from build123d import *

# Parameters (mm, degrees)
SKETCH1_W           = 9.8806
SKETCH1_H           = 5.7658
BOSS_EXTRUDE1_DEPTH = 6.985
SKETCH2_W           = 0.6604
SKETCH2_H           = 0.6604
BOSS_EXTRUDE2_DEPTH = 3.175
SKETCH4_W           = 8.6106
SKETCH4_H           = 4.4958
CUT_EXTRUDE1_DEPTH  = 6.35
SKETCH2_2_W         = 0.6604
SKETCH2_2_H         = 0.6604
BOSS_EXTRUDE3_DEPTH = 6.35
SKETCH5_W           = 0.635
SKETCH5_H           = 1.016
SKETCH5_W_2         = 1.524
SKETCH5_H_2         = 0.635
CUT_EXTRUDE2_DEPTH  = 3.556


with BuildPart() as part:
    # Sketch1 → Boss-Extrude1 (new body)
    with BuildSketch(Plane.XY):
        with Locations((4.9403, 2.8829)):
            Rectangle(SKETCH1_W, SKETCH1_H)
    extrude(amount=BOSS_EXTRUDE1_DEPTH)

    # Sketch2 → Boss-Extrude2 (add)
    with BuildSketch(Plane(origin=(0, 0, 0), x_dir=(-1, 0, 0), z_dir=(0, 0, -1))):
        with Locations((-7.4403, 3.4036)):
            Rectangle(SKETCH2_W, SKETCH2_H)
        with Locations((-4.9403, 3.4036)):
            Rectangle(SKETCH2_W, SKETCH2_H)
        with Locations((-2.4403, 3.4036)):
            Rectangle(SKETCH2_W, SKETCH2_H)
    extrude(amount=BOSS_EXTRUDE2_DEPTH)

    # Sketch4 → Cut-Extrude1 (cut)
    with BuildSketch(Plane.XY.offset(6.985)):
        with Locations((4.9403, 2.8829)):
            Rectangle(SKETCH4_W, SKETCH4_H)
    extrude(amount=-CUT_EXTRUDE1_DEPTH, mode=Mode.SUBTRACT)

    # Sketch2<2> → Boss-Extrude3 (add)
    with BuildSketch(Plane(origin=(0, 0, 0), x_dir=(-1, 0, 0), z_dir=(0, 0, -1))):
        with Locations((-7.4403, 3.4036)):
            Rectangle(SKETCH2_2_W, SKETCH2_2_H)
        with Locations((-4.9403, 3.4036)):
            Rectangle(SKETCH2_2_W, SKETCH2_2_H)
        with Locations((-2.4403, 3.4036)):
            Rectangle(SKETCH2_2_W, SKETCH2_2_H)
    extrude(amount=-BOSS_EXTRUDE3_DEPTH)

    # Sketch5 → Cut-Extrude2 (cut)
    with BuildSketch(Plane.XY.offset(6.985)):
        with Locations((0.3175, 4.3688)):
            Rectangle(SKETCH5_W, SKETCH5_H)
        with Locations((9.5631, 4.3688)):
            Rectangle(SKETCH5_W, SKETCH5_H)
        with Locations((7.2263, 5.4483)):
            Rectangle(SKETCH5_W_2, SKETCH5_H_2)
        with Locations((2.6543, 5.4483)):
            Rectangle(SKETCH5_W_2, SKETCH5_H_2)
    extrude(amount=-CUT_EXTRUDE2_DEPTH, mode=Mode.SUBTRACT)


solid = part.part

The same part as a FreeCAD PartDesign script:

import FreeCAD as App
import Part
import Sketcher
Q = App.Units.Quantity

doc = App.newDocument("Part")
params = doc.addObject("Spreadsheet::Sheet", "Params")
for row, (alias, value) in enumerate([
    ("sketch1_width", "0.389 in"),
    ("sketch1_height", "0.227 in"),
    ("pad1_length", "0.275 in"),
    ("sketch2_width", "0.026 in"),
    ("pad2_length", "0.125 in"),
    ("sketch3_width", "0.339 in"),
    ("sketch3_height", "0.177 in"),
    ("pocket1_length", "0.25 in"),
    ("sketch4_width", "0.026 in"),
    ("pad3_length", "0.25 in"),
    ("sketch5_width", "0.06 in"),
    ("sketch5_height", "0.04 in"),
    ("sketch5_width2", "0.025 in"),
    ("pocket2_length", "0.14 in"),
], start=1):
    params.set(f"A{row}", alias)
    params.set(f"B{row}", "=" + value)
    params.setAlias(f"B{row}", alias)

body = doc.addObject("PartDesign::Body", "Body")

sketch1 = body.newObject("Sketcher::SketchObject", "Sketch")
sketch1.AttachmentSupport = (doc.getObject("XY_Plane"), [""])
sketch1.MapMode = "FlatFace"
sketch1.addGeometry([
    Part.LineSegment(App.Vector(0, 5.7658, 0), App.Vector(0, 0, 0)),
    Part.LineSegment(App.Vector(0, 0, 0), App.Vector(9.8806, 0, 0)),
    Part.LineSegment(App.Vector(9.8806, 0, 0), App.Vector(9.8806, 5.7658, 0)),
    Part.LineSegment(App.Vector(9.8806, 5.7658, 0), App.Vector(0, 5.7658, 0)),
], False)
sketch1.addConstraint([
    Sketcher.Constraint("Coincident", 0, 2, 1, 1),
    Sketcher.Constraint("Coincident", 1, 2, 2, 1),
    Sketcher.Constraint("Coincident", 2, 2, 3, 1),
    Sketcher.Constraint("Coincident", 3, 2, 0, 1),
    Sketcher.Constraint("Vertical", 0),
    Sketcher.Constraint("Horizontal", 1),
    Sketcher.Constraint("Vertical", 2),
    Sketcher.Constraint("Horizontal", 3),
    Sketcher.Constraint("Coincident", 0, 2, -1, 1),
    Sketcher.Constraint("DistanceX", 1, 1, 1, 2, Q("0.389 in")),
    Sketcher.Constraint("DistanceY", 0, 2, 0, 1, Q("0.227 in")),
])
sketch1.setExpression("Constraints[9]", "Params.sketch1_width")
sketch1.setExpression("Constraints[10]", "Params.sketch1_height")
pad1 = body.newObject("PartDesign::Pad", "Pad")
pad1.Profile = sketch1
pad1.setExpression("Length", "Params.pad1_length")

sketch2 = body.newObject("Sketcher::SketchObject", "Sketch001")
sketch2.AttachmentSupport = (doc.getObject("XY_Plane"), [""])
sketch2.MapMode = "FlatFace"
sketch2.addGeometry([
    Part.LineSegment(App.Vector(7.7705, 3.7338, 0), App.Vector(7.7705, 3.0734, 0)),
    Part.LineSegment(App.Vector(7.7705, 3.0734, 0), App.Vector(7.1101, 3.0734, 0)),
    Part.LineSegment(App.Vector(7.1101, 3.0734, 0), App.Vector(7.1101, 3.7338, 0)),
    Part.LineSegment(App.Vector(7.1101, 3.7338, 0), App.Vector(7.7705, 3.7338, 0)),
    Part.LineSegment(App.Vector(5.2705, 3.7338, 0), App.Vector(5.2705, 3.0734, 0)),
    Part.LineSegment(App.Vector(5.2705, 3.0734, 0), App.Vector(4.6101, 3.0734, 0)),
    Part.LineSegment(App.Vector(4.6101, 3.0734, 0), App.Vector(4.6101, 3.7338, 0)),
    Part.LineSegment(App.Vector(4.6101, 3.7338, 0), App.Vector(5.2705, 3.7338, 0)),
    Part.LineSegment(App.Vector(2.7705, 3.7338, 0), App.Vector(2.7705, 3.0734, 0)),
    Part.LineSegment(App.Vector(2.7705, 3.0734, 0), App.Vector(2.1101, 3.0734, 0)),
    Part.LineSegment(App.Vector(2.1101, 3.0734, 0), App.Vector(2.1101, 3.7338, 0)),
    Part.LineSegment(App.Vector(2.1101, 3.7338, 0), App.Vector(2.7705, 3.7338, 0)),
], False)
sketch2.addConstraint([
    Sketcher.Constraint("Coincident", 0, 2, 1, 1),
    Sketcher.Constraint("Coincident", 1, 2, 2, 1),
    Sketcher.Constraint("Coincident", 2, 2, 3, 1),
    Sketcher.Constraint("Coincident", 3, 2, 0, 1),
    Sketcher.Constraint("Coincident", 4, 2, 5, 1),
    Sketcher.Constraint("Coincident", 5, 2, 6, 1),
    Sketcher.Constraint("Coincident", 6, 2, 7, 1),
    Sketcher.Constraint("Coincident", 7, 2, 4, 1),
    Sketcher.Constraint("Coincident", 8, 2, 9, 1),
    Sketcher.Constraint("Coincident", 9, 2, 10, 1),
    Sketcher.Constraint("Coincident", 10, 2, 11, 1),
    Sketcher.Constraint("Coincident", 11, 2, 8, 1),
    Sketcher.Constraint("Vertical", 0),
    Sketcher.Constraint("Horizontal", 1),
    Sketcher.Constraint("Vertical", 2),
    Sketcher.Constraint("Horizontal", 3),
    Sketcher.Constraint("Vertical", 4),
    Sketcher.Constraint("Horizontal", 5),
    Sketcher.Constraint("Vertical", 6),
    Sketcher.Constraint("Horizontal", 7),
    Sketcher.Constraint("Vertical", 8),
    Sketcher.Constraint("Horizontal", 9),
    Sketcher.Constraint("Vertical", 10),
    Sketcher.Constraint("Horizontal", 11),
    Sketcher.Constraint("Horizontal", 1, 2, 4, 2),
    Sketcher.Constraint("Horizontal", 3, 2, 6, 2),
    Sketcher.Constraint("Horizontal", 5, 2, 8, 2),
    Sketcher.Constraint("Horizontal", 7, 2, 10, 2),
    Sketcher.Constraint("Equal", 3, 5),
    Sketcher.Constraint("Equal", 7, 9),
    Sketcher.Constraint("Equal", 11, 0),
    Sketcher.Constraint("DistanceX", 1, 2, 1, 1, Q("0.026 in")),
    Sketcher.Constraint("DistanceY", -1, 1, 0, 2, Q("0.121 in")),
    Sketcher.Constraint("DistanceX", -1, 1, 4, 2, Q("0.2075 in")),
    Sketcher.Constraint("DistanceX", -1, 1, 0, 2, 7.7705),
    Sketcher.Constraint("DistanceX", -1, 1, 8, 2, 2.7705),
])
sketch2.setExpression("Constraints[31]", "Params.sketch2_width")
pad2 = body.newObject("PartDesign::Pad", "Pad001")
pad2.Profile = sketch2
pad2.setExpression("Length", "Params.pad2_length")
pad2.Reversed = True

sketch3 = body.newObject("Sketcher::SketchObject", "Sketch002")
sketch3.AttachmentSupport = (doc.getObject("XY_Plane"), [""])
sketch3.MapMode = "FlatFace"
sketch3.AttachmentOffset = App.Placement(App.Vector(0, 0, 0.275 * 25.4), App.Rotation())
sketch3.addGeometry([
    Part.LineSegment(App.Vector(0.635, 5.1308, 0), App.Vector(0.635, 0.635, 0)),
    Part.LineSegment(App.Vector(0.635, 0.635, 0), App.Vector(9.2456, 0.635, 0)),
    Part.LineSegment(App.Vector(9.2456, 0.635, 0), App.Vector(9.2456, 5.1308, 0)),
    Part.LineSegment(App.Vector(9.2456, 5.1308, 0), App.Vector(0.635, 5.1308, 0)),
], False)
sketch3.addConstraint([
    Sketcher.Constraint("Coincident", 0, 2, 1, 1),
    Sketcher.Constraint("Coincident", 1, 2, 2, 1),
    Sketcher.Constraint("Coincident", 2, 2, 3, 1),
    Sketcher.Constraint("Coincident", 3, 2, 0, 1),
    Sketcher.Constraint("Vertical", 0),
    Sketcher.Constraint("Horizontal", 1),
    Sketcher.Constraint("Vertical", 2),
    Sketcher.Constraint("Horizontal", 3),
    Sketcher.Constraint("DistanceX", 1, 1, 1, 2, Q("0.339 in")),
    Sketcher.Constraint("DistanceY", 0, 2, 0, 1, Q("0.177 in")),
    Sketcher.Constraint("DistanceX", -1, 1, 0, 2, Q("0.025 in")),
    Sketcher.Constraint("DistanceY", -1, 1, 0, 2, Q("0.025 in")),
])
sketch3.setExpression("Constraints[8]", "Params.sketch3_width")
sketch3.setExpression("Constraints[9]", "Params.sketch3_height")
pocket1 = body.newObject("PartDesign::Pocket", "Pocket")
pocket1.Profile = sketch3
pocket1.setExpression("Length", "Params.pocket1_length")

sketch4 = body.newObject("Sketcher::SketchObject", "Sketch003")
sketch4.AttachmentSupport = (doc.getObject("XY_Plane"), [""])
sketch4.MapMode = "FlatFace"
sketch4.addGeometry([
    Part.LineSegment(App.Vector(7.7705, 3.7338, 0), App.Vector(7.7705, 3.0734, 0)),
    Part.LineSegment(App.Vector(7.7705, 3.0734, 0), App.Vector(7.1101, 3.0734, 0)),
    Part.LineSegment(App.Vector(7.1101, 3.0734, 0), App.Vector(7.1101, 3.7338, 0)),
    Part.LineSegment(App.Vector(7.1101, 3.7338, 0), App.Vector(7.7705, 3.7338, 0)),
    Part.LineSegment(App.Vector(5.2705, 3.7338, 0), App.Vector(5.2705, 3.0734, 0)),
    Part.LineSegment(App.Vector(5.2705, 3.0734, 0), App.Vector(4.6101, 3.0734, 0)),
    Part.LineSegment(App.Vector(4.6101, 3.0734, 0), App.Vector(4.6101, 3.7338, 0)),
    Part.LineSegment(App.Vector(4.6101, 3.7338, 0), App.Vector(5.2705, 3.7338, 0)),
    Part.LineSegment(App.Vector(2.7705, 3.7338, 0), App.Vector(2.7705, 3.0734, 0)),
    Part.LineSegment(App.Vector(2.7705, 3.0734, 0), App.Vector(2.1101, 3.0734, 0)),
    Part.LineSegment(App.Vector(2.1101, 3.0734, 0), App.Vector(2.1101, 3.7338, 0)),
    Part.LineSegment(App.Vector(2.1101, 3.7338, 0), App.Vector(2.7705, 3.7338, 0)),
], False)
sketch4.addConstraint([
    Sketcher.Constraint("Coincident", 0, 2, 1, 1),
    Sketcher.Constraint("Coincident", 1, 2, 2, 1),
    Sketcher.Constraint("Coincident", 2, 2, 3, 1),
    Sketcher.Constraint("Coincident", 3, 2, 0, 1),
    Sketcher.Constraint("Coincident", 4, 2, 5, 1),
    Sketcher.Constraint("Coincident", 5, 2, 6, 1),
    Sketcher.Constraint("Coincident", 6, 2, 7, 1),
    Sketcher.Constraint("Coincident", 7, 2, 4, 1),
    Sketcher.Constraint("Coincident", 8, 2, 9, 1),
    Sketcher.Constraint("Coincident", 9, 2, 10, 1),
    Sketcher.Constraint("Coincident", 10, 2, 11, 1),
    Sketcher.Constraint("Coincident", 11, 2, 8, 1),
    Sketcher.Constraint("Vertical", 0),
    Sketcher.Constraint("Horizontal", 1),
    Sketcher.Constraint("Vertical", 2),
    Sketcher.Constraint("Horizontal", 3),
    Sketcher.Constraint("Vertical", 4),
    Sketcher.Constraint("Horizontal", 5),
    Sketcher.Constraint("Vertical", 6),
    Sketcher.Constraint("Horizontal", 7),
    Sketcher.Constraint("Vertical", 8),
    Sketcher.Constraint("Horizontal", 9),
    Sketcher.Constraint("Vertical", 10),
    Sketcher.Constraint("Horizontal", 11),
    Sketcher.Constraint("Horizontal", 1, 2, 4, 2),
    Sketcher.Constraint("Horizontal", 3, 2, 6, 2),
    Sketcher.Constraint("Horizontal", 5, 2, 8, 2),
    Sketcher.Constraint("Horizontal", 7, 2, 10, 2),
    Sketcher.Constraint("Equal", 3, 5),
    Sketcher.Constraint("Equal", 7, 9),
    Sketcher.Constraint("Equal", 11, 0),
    Sketcher.Constraint("DistanceX", 1, 2, 1, 1, Q("0.026 in")),
    Sketcher.Constraint("DistanceY", -1, 1, 0, 2, Q("0.121 in")),
    Sketcher.Constraint("DistanceX", -1, 1, 4, 2, Q("0.2075 in")),
    Sketcher.Constraint("DistanceX", -1, 1, 0, 2, 7.7705),
    Sketcher.Constraint("DistanceX", -1, 1, 8, 2, 2.7705),
])
sketch4.setExpression("Constraints[31]", "Params.sketch4_width")
pad3 = body.newObject("PartDesign::Pad", "Pad002")
pad3.Profile = sketch4
pad3.setExpression("Length", "Params.pad3_length")

sketch5 = body.newObject("Sketcher::SketchObject", "Sketch004")
sketch5.AttachmentSupport = (doc.getObject("XY_Plane"), [""])
sketch5.MapMode = "FlatFace"
sketch5.AttachmentOffset = App.Placement(App.Vector(0, 0, 0.275 * 25.4), App.Rotation())
sketch5.addGeometry([
    Part.LineSegment(App.Vector(0, 4.8768, 0), App.Vector(0, 3.8608, 0)),
    Part.LineSegment(App.Vector(0, 3.8608, 0), App.Vector(0.635, 3.8608, 0)),
    Part.LineSegment(App.Vector(0.635, 3.8608, 0), App.Vector(0.635, 4.8768, 0)),
    Part.LineSegment(App.Vector(0.635, 4.8768, 0), App.Vector(0, 4.8768, 0)),
    Part.LineSegment(App.Vector(9.2456, 4.8768, 0), App.Vector(9.2456, 3.8608, 0)),
    Part.LineSegment(App.Vector(9.2456, 3.8608, 0), App.Vector(9.8806, 3.8608, 0)),
    Part.LineSegment(App.Vector(9.8806, 3.8608, 0), App.Vector(9.8806, 4.8768, 0)),
    Part.LineSegment(App.Vector(9.8806, 4.8768, 0), App.Vector(9.2456, 4.8768, 0)),
    Part.LineSegment(App.Vector(6.4643, 5.7658, 0), App.Vector(6.4643, 5.1308, 0)),
    Part.LineSegment(App.Vector(6.4643, 5.1308, 0), App.Vector(7.9883, 5.1308, 0)),
    Part.LineSegment(App.Vector(7.9883, 5.1308, 0), App.Vector(7.9883, 5.7658, 0)),
    Part.LineSegment(App.Vector(7.9883, 5.7658, 0), App.Vector(6.4643, 5.7658, 0)),
    Part.LineSegment(App.Vector(1.8923, 5.7658, 0), App.Vector(1.8923, 5.1308, 0)),
    Part.LineSegment(App.Vector(1.8923, 5.1308, 0), App.Vector(3.4163, 5.1308, 0)),
    Part.LineSegment(App.Vector(3.4163, 5.1308, 0), App.Vector(3.4163, 5.7658, 0)),
    Part.LineSegment(App.Vector(3.4163, 5.7658, 0), App.Vector(1.8923, 5.7658, 0)),
], False)
sketch5.addConstraint([
    Sketcher.Constraint("Coincident", 0, 2, 1, 1),
    Sketcher.Constraint("Coincident", 1, 2, 2, 1),
    Sketcher.Constraint("Coincident", 2, 2, 3, 1),
    Sketcher.Constraint("Coincident", 3, 2, 0, 1),
    Sketcher.Constraint("Coincident", 4, 2, 5, 1),
    Sketcher.Constraint("Coincident", 5, 2, 6, 1),
    Sketcher.Constraint("Coincident", 6, 2, 7, 1),
    Sketcher.Constraint("Coincident", 7, 2, 4, 1),
    Sketcher.Constraint("Coincident", 8, 2, 9, 1),
    Sketcher.Constraint("Coincident", 9, 2, 10, 1),
    Sketcher.Constraint("Coincident", 10, 2, 11, 1),
    Sketcher.Constraint("Coincident", 11, 2, 8, 1),
    Sketcher.Constraint("Coincident", 12, 2, 13, 1),
    Sketcher.Constraint("Coincident", 13, 2, 14, 1),
    Sketcher.Constraint("Coincident", 14, 2, 15, 1),
    Sketcher.Constraint("Coincident", 15, 2, 12, 1),
    Sketcher.Constraint("Vertical", 0),
    Sketcher.Constraint("Horizontal", 1),
    Sketcher.Constraint("Vertical", 2),
    Sketcher.Constraint("Horizontal", 3),
    Sketcher.Constraint("Vertical", 4),
    Sketcher.Constraint("Horizontal", 5),
    Sketcher.Constraint("Vertical", 6),
    Sketcher.Constraint("Horizontal", 7),
    Sketcher.Constraint("Vertical", 8),
    Sketcher.Constraint("Horizontal", 9),
    Sketcher.Constraint("Vertical", 10),
    Sketcher.Constraint("Horizontal", 11),
    Sketcher.Constraint("Vertical", 12),
    Sketcher.Constraint("Horizontal", 13),
    Sketcher.Constraint("Vertical", 14),
    Sketcher.Constraint("Horizontal", 15),
    Sketcher.Constraint("PointOnObject", 0, 2, -2),
    Sketcher.Constraint("Horizontal", 1, 2, 4, 2),
    Sketcher.Constraint("Horizontal", 3, 2, 6, 2),
    Sketcher.Constraint("Horizontal", 9, 2, 12, 2),
    Sketcher.Constraint("Horizontal", 11, 2, 14, 2),
    Sketcher.Constraint("Equal", 3, 5),
    Sketcher.Constraint("Equal", 11, 13),
    Sketcher.Constraint("Equal", 7, 8),
    Sketcher.Constraint("DistanceX", 9, 1, 9, 2, Q("0.06 in")),
    Sketcher.Constraint("DistanceY", 0, 2, 0, 1, Q("0.04 in")),
    Sketcher.Constraint("DistanceX", 1, 1, 1, 2, Q("0.025 in")),
    Sketcher.Constraint("DistanceY", 7, 2, 8, 2, Q("0.01 in")),
    Sketcher.Constraint("DistanceX", 12, 2, 8, 2, Q("0.18 in")),
    Sketcher.Constraint("DistanceY", -1, 1, 0, 2, Q("0.152 in")),
    Sketcher.Constraint("DistanceX", -1, 1, 4, 2, Q("0.364 in")),
    Sketcher.Constraint("DistanceX", -1, 1, 8, 2, Q("0.2545 in")),
])
sketch5.setExpression("Constraints[40]", "Params.sketch5_width")
sketch5.setExpression("Constraints[41]", "Params.sketch5_height")
sketch5.setExpression("Constraints[42]", "Params.sketch5_width2")
pocket2 = body.newObject("PartDesign::Pocket", "Pocket001")
pocket2.Profile = sketch5
pocket2.setExpression("Length", "Params.pocket2_length")

doc.recompute()
